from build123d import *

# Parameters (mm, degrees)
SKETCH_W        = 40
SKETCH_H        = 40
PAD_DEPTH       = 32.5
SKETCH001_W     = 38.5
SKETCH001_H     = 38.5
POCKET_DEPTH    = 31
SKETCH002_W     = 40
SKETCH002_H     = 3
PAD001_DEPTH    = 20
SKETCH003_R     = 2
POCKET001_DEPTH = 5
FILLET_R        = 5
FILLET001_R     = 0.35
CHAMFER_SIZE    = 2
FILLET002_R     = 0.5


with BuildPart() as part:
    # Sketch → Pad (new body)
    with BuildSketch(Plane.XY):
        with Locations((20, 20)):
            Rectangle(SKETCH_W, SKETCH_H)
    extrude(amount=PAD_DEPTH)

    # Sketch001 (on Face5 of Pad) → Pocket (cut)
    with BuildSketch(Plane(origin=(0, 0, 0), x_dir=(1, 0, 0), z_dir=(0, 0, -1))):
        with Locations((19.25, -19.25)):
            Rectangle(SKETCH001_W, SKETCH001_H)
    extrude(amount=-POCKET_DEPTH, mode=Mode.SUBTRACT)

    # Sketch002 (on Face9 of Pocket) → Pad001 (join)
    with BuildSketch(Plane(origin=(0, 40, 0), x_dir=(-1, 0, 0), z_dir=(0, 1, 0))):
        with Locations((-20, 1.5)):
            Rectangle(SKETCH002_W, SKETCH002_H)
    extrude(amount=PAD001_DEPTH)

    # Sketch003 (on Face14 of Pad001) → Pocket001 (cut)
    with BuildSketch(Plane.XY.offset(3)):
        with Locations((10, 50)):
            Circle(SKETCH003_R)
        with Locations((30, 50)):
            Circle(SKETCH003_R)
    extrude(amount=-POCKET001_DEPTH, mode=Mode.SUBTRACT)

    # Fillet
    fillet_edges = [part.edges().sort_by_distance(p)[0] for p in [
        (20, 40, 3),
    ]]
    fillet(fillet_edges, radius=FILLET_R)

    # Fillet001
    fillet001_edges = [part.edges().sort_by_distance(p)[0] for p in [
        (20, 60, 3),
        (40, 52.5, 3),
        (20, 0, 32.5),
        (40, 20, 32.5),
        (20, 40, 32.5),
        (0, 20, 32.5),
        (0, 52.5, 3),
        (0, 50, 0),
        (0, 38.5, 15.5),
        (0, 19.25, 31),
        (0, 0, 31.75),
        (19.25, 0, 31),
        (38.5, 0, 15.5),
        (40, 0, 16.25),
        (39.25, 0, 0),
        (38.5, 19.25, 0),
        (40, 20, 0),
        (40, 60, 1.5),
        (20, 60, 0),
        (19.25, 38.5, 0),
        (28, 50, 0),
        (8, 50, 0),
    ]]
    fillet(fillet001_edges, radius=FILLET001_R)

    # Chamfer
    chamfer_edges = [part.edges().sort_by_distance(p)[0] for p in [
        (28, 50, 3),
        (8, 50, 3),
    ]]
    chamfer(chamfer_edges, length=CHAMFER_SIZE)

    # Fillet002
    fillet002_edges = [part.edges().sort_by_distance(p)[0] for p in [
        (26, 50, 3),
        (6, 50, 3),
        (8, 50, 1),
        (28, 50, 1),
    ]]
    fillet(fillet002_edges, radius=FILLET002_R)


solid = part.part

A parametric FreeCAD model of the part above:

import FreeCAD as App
import Part
import Sketcher


def edges_at(feature, points):
    """Names of the edges that pass closest to the given points."""
    edges = feature.Shape.Edges
    near = lambda p: min(range(len(edges)), key=lambda i: edges[i].distToShape(Part.Vertex(*p))[0])
    return sorted({f"Edge{near(p) + 1}" for p in points})


def add_polygon(sketch, points):
    """Adds a closed chain of lines whose ends are joined by coincident constraints."""
    first, n = sketch.GeometryCount, len(points)
    for a, b in zip(points, points[1:] + points[:1]):
        sketch.addGeometry(Part.LineSegment(App.Vector(*a, 0), App.Vector(*b, 0)), False)
    for i in range(n):
        sketch.addConstraint(Sketcher.Constraint("Coincident", first + i, 2, first + (i + 1) % n, 1))

doc = App.newDocument("Part")
body = doc.addObject("PartDesign::Body", "Body")

# Sketch on XY plane
sketch1 = body.newObject("Sketcher::SketchObject", "Sketch")
sketch1.AttachmentSupport = (doc.getObject("XY_Plane"), [""])
sketch1.MapMode = "FlatFace"
add_polygon(sketch1, [(0, 40), (0, 0), (40, 0), (40, 40)])  # lines 0-3
sketch1.addConstraint(Sketcher.Constraint("Vertical", 0))
sketch1.addConstraint(Sketcher.Constraint("Horizontal", 1))
sketch1.addConstraint(Sketcher.Constraint("Vertical", 2))
sketch1.addConstraint(Sketcher.Constraint("Horizontal", 3))
sketch1.addConstraint(Sketcher.Constraint("Coincident", 0, 2, -1, 1))
sketch1.addConstraint(Sketcher.Constraint("Equal", 3, 0))
sketch1.addConstraint(Sketcher.Constraint("DistanceX", 1, 1, 1, 2, 40.0))
pad1 = body.newObject("PartDesign::Pad", "Pad")
pad1.Profile = sketch1
pad1.Length = 32.5

# Sketch on XY plane
sketch2 = body.newObject("Sketcher::SketchObject", "Sketch001")
sketch2.AttachmentSupport = (doc.getObject("XY_Plane"), [""])
sketch2.MapMode = "FlatFace"
add_polygon(sketch2, [(0, 0), (0, 38), (38, 38), (38, 0)])  # lines 0-3
sketch2.addConstraint(Sketcher.Constraint("Vertical", 0))
sketch2.addConstraint(Sketcher.Constraint("Horizontal", 1))
sketch2.addConstraint(Sketcher.Constraint("Vertical", 2))
sketch2.addConstraint(Sketcher.Constraint("Horizontal", 3))
sketch2.addConstraint(Sketcher.Constraint("Coincident", 3, 2, -1, 1))
sketch2.addConstraint(Sketcher.Constraint("Equal", 3, 0))
sketch2.addConstraint(Sketcher.Constraint("DistanceX", 1, 1, 1, 2, 38.5))
pocket1 = body.newObject("PartDesign::Pocket", "Pocket")
pocket1.Profile = sketch2
pocket1.Length = 31
pocket1.Reversed = True

# Sketch on XZ plane
sketch3 = body.newObject("Sketcher::SketchObject", "Sketch002")
sketch3.AttachmentSupport = (doc.getObject("XZ_Plane"), [""])
sketch3.MapMode = "FlatFace"
sketch3.AttachmentOffset = App.Placement(App.Vector(0, 0, -40), App.Rotation())
add_polygon(sketch3, [(40, 3), (40, 0), (0, 0), (0, 3)])  # lines 0-3
sketch3.addConstraint(Sketcher.Constraint("Vertical", 0))
sketch3.addConstraint(Sketcher.Constraint("Horizontal", 1))
sketch3.addConstraint(Sketcher.Constraint("Vertical", 2))
sketch3.addConstraint(Sketcher.Constraint("Horizontal", 3))
sketch3.addConstraint(Sketcher.Constraint("Coincident", 1, 2, -1, 1))
sketch3.addConstraint(Sketcher.Constraint("DistanceX", 1, 2, 1, 1, 40.0))
sketch3.addConstraint(Sketcher.Constraint("DistanceY", 0, 2, 0, 1, 3.0))
pad2 = body.newObject("PartDesign::Pad", "Pad001")
pad2.Profile = sketch3
pad2.Length = 20
pad2.Reversed = True

# Sketch on XY plane
sketch4 = body.newObject("Sketcher::SketchObject", "Sketch003")
sketch4.AttachmentSupport = (doc.getObject("XY_Plane"), [""])
sketch4.MapMode = "FlatFace"
sketch4.AttachmentOffset = App.Placement(App.Vector(0, 0, 3), App.Rotation())
sketch4.addGeometry(Part.Circle(App.Vector(10, 50, 0), App.Vector(0, 0, 1), 2), False)
sketch4.addGeometry(Part.Circle(App.Vector(30, 50, 0), App.Vector(0, 0, 1), 2), False)
sketch4.addConstraint(Sketcher.Constraint("Equal", 0, 1))
sketch4.addConstraint(Sketcher.Constraint("Horizontal", 0, 3, 1, 3))
sketch4.addConstraint(Sketcher.Constraint("Diameter", 0, 4.0))
sketch4.addConstraint(Sketcher.Constraint("DistanceX", -1, 1, 0, 3, 10.0))
sketch4.addConstraint(Sketcher.Constraint("DistanceY", -1, 1, 0, 3, 50.0))
sketch4.addConstraint(Sketcher.Constraint("DistanceX", -1, 1, 1, 3, 30.0))
pocket2 = body.newObject("PartDesign::Pocket", "Pocket001")
pocket2.Profile = sketch4
pocket2.Length = 5
doc.recompute()

fillet = body.newObject("PartDesign::Fillet", "Fillet")
fillet.Base = (pocket2, edges_at(pocket2, [(20, 40, 3)]))
fillet.Radius = 5
doc.recompute()

fillet2 = body.newObject("PartDesign::Fillet", "Fillet001")
fillet2.Base = (fillet, edges_at(fillet, [
    (20, 60, 3),
    (40, 52.5, 3),
    (20, 0, 32.5),
    (40, 20, 32.5),
    (20, 40, 32.5),
    (0, 20, 32.5),
    (0, 52.5, 3),
    (0, 49.25, 0),
    (0, 38.5, 15.5),
    (0, 19.25, 31),
    (0, 0, 31.75),
    (19.25, 0, 31),
    (38.5, 0, 15.5),
    (40, 0, 16.25),
    (39.25, 0, 0),
    (38.5, 19.25, 0),
    (40, 30, 0),
    (40, 60, 1.5),
    (20, 60, 0),
    (19.25, 38.5, 0),
    (28, 50, 0),
    (8, 50, 0),
]))
fillet2.Radius = 0.35
doc.recompute()

chamfer = body.newObject("PartDesign::Chamfer", "Chamfer")
chamfer.Base = (fillet2, edges_at(fillet2, [(28, 50, 3), (8, 50, 3)]))
chamfer.Size = 2
doc.recompute()

fillet3 = body.newObject("PartDesign::Fillet", "Fillet002")
fillet3.Base = (chamfer, edges_at(chamfer, [
    (26, 50, 3),
    (6, 50, 3),
    (8, 50, 1),
    (28, 50, 1),
]))
fillet3.Radius = 0.5

doc.recompute()
